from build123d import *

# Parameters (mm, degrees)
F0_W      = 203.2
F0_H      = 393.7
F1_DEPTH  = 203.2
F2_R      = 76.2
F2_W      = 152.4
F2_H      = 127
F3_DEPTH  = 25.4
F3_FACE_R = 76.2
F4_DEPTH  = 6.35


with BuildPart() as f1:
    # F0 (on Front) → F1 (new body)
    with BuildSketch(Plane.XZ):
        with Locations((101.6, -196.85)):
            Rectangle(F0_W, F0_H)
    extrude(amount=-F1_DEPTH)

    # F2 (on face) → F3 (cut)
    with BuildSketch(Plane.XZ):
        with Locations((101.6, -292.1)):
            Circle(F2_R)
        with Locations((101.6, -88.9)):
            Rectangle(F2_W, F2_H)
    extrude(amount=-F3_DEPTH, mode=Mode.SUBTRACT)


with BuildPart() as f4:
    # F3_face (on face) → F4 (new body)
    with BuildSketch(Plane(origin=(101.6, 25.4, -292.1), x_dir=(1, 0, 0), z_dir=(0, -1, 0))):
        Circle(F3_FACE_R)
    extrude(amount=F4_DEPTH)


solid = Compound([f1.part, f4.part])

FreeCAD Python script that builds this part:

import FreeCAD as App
import Part
import Sketcher

V = App.Vector
Q = App.Units.Quantity


def add_polygon(sketch, points):
    """Adds a closed chain of lines whose ends are joined by coincident constraints."""
    first, n = sketch.GeometryCount, len(points)
    for a, b in zip(points, points[1:] + points[:1]):
        sketch.addGeometry(Part.LineSegment(App.Vector(*a, 0), App.Vector(*b, 0)), False)
    for i in range(n):
        sketch.addConstraint(Sketcher.Constraint("Coincident", first + i, 2, first + (i + 1) % n, 1))

doc = App.newDocument("Part")
body = doc.addObject("PartDesign::Body", "Body")

sketch1 = body.newObject("Sketcher::SketchObject", "Sketch")
sketch1.AttachmentSupport = (doc.getObject("XZ_Plane"), [""])
sketch1.MapMode = "FlatFace"
add_polygon(sketch1, [(0, 0), (0, -394), (203, -394), (203, 0)])
sketch1.addConstraint([
    Sketcher.Constraint("Vertical", 0),
    Sketcher.Constraint("Horizontal", 1),
    Sketcher.Constraint("Vertical", 2),
    Sketcher.Constraint("Horizontal", 3),
    Sketcher.Constraint("Coincident", 3, 2, -1, 1),
    Sketcher.Constraint("DistanceX", 1, 1, 1, 2, Q("8 in")),
    Sketcher.Constraint("DistanceY", 0, 2, 0, 1, Q("15.5 in")),
])
pad1 = body.newObject("PartDesign::Pad", "Pad")
pad1.Profile = sketch1
pad1.Length = Q("8 in")
pad1.Reversed = True

sketch2 = body.newObject("Sketcher::SketchObject", "Sketch001")
sketch2.AttachmentSupport = (doc.getObject("XZ_Plane"), [""])
sketch2.MapMode = "FlatFace"
sketch2.addGeometry(Part.Circle(V(102, -292, 0), V(0, 0, 1), 76), False)
add_polygon(sketch2, [(25, -25), (25, -152), (178, -152), (178, -25)])
sketch2.addConstraint([
    Sketcher.Constraint("Vertical", 1),
    Sketcher.Constraint("Horizontal", 2),
    Sketcher.Constraint("Vertical", 3),
    Sketcher.Constraint("Horizontal", 4),
    Sketcher.Constraint("Diameter", 0, Q("6 in")),
    Sketcher.Constraint("DistanceX", 2, 1, 2, 2, Q("6 in")),
    Sketcher.Constraint("DistanceY", 1, 2, 1, 1, Q("5 in")),
    Sketcher.Constraint("DistanceX", -1, 1, 0, 3, Q("4 in")),
    Sketcher.Constraint("DistanceX", -1, 1, 1, 2, Q("1 in")),
    Sketcher.Constraint("DistanceY", 1, 2, -1, 1, Q("6 in")),
    Sketcher.Constraint("DistanceY", 0, 3, -1, 1, Q("11.5 in")),
])
pocket1 = body.newObject("PartDesign::Pocket", "Pocket")
pocket1.Profile = sketch2
pocket1.Length = Q("1 in")
body2 = doc.addObject("PartDesign::Body", "Body001")

sketch3 = body2.newObject("Sketcher::SketchObject", "Sketch002")
sketch3.AttachmentSupport = (doc.getObject("XZ_Plane001"), [""])
sketch3.MapMode = "FlatFace"
sketch3.AttachmentOffset = App.Placement(V(0, 0, -1 * 25.4), App.Rotation())
sketch3.addGeometry(Part.Circle(V(102, -292, 0), V(0, 0, 1), 76), False)
sketch3.addConstraint([
    Sketcher.Constraint("Diameter", 0, Q("6 in")),
    Sketcher.Constraint("DistanceX", -1, 1, 0, 3, Q("4 in")),
    Sketcher.Constraint("DistanceY", 0, 3, -1, 1, Q("11.5 in")),
])
pad2 = body2.newObject("PartDesign::Pad", "Pad001")
pad2.Profile = sketch3
pad2.Length = Q("0.25 in")

doc.recompute()
